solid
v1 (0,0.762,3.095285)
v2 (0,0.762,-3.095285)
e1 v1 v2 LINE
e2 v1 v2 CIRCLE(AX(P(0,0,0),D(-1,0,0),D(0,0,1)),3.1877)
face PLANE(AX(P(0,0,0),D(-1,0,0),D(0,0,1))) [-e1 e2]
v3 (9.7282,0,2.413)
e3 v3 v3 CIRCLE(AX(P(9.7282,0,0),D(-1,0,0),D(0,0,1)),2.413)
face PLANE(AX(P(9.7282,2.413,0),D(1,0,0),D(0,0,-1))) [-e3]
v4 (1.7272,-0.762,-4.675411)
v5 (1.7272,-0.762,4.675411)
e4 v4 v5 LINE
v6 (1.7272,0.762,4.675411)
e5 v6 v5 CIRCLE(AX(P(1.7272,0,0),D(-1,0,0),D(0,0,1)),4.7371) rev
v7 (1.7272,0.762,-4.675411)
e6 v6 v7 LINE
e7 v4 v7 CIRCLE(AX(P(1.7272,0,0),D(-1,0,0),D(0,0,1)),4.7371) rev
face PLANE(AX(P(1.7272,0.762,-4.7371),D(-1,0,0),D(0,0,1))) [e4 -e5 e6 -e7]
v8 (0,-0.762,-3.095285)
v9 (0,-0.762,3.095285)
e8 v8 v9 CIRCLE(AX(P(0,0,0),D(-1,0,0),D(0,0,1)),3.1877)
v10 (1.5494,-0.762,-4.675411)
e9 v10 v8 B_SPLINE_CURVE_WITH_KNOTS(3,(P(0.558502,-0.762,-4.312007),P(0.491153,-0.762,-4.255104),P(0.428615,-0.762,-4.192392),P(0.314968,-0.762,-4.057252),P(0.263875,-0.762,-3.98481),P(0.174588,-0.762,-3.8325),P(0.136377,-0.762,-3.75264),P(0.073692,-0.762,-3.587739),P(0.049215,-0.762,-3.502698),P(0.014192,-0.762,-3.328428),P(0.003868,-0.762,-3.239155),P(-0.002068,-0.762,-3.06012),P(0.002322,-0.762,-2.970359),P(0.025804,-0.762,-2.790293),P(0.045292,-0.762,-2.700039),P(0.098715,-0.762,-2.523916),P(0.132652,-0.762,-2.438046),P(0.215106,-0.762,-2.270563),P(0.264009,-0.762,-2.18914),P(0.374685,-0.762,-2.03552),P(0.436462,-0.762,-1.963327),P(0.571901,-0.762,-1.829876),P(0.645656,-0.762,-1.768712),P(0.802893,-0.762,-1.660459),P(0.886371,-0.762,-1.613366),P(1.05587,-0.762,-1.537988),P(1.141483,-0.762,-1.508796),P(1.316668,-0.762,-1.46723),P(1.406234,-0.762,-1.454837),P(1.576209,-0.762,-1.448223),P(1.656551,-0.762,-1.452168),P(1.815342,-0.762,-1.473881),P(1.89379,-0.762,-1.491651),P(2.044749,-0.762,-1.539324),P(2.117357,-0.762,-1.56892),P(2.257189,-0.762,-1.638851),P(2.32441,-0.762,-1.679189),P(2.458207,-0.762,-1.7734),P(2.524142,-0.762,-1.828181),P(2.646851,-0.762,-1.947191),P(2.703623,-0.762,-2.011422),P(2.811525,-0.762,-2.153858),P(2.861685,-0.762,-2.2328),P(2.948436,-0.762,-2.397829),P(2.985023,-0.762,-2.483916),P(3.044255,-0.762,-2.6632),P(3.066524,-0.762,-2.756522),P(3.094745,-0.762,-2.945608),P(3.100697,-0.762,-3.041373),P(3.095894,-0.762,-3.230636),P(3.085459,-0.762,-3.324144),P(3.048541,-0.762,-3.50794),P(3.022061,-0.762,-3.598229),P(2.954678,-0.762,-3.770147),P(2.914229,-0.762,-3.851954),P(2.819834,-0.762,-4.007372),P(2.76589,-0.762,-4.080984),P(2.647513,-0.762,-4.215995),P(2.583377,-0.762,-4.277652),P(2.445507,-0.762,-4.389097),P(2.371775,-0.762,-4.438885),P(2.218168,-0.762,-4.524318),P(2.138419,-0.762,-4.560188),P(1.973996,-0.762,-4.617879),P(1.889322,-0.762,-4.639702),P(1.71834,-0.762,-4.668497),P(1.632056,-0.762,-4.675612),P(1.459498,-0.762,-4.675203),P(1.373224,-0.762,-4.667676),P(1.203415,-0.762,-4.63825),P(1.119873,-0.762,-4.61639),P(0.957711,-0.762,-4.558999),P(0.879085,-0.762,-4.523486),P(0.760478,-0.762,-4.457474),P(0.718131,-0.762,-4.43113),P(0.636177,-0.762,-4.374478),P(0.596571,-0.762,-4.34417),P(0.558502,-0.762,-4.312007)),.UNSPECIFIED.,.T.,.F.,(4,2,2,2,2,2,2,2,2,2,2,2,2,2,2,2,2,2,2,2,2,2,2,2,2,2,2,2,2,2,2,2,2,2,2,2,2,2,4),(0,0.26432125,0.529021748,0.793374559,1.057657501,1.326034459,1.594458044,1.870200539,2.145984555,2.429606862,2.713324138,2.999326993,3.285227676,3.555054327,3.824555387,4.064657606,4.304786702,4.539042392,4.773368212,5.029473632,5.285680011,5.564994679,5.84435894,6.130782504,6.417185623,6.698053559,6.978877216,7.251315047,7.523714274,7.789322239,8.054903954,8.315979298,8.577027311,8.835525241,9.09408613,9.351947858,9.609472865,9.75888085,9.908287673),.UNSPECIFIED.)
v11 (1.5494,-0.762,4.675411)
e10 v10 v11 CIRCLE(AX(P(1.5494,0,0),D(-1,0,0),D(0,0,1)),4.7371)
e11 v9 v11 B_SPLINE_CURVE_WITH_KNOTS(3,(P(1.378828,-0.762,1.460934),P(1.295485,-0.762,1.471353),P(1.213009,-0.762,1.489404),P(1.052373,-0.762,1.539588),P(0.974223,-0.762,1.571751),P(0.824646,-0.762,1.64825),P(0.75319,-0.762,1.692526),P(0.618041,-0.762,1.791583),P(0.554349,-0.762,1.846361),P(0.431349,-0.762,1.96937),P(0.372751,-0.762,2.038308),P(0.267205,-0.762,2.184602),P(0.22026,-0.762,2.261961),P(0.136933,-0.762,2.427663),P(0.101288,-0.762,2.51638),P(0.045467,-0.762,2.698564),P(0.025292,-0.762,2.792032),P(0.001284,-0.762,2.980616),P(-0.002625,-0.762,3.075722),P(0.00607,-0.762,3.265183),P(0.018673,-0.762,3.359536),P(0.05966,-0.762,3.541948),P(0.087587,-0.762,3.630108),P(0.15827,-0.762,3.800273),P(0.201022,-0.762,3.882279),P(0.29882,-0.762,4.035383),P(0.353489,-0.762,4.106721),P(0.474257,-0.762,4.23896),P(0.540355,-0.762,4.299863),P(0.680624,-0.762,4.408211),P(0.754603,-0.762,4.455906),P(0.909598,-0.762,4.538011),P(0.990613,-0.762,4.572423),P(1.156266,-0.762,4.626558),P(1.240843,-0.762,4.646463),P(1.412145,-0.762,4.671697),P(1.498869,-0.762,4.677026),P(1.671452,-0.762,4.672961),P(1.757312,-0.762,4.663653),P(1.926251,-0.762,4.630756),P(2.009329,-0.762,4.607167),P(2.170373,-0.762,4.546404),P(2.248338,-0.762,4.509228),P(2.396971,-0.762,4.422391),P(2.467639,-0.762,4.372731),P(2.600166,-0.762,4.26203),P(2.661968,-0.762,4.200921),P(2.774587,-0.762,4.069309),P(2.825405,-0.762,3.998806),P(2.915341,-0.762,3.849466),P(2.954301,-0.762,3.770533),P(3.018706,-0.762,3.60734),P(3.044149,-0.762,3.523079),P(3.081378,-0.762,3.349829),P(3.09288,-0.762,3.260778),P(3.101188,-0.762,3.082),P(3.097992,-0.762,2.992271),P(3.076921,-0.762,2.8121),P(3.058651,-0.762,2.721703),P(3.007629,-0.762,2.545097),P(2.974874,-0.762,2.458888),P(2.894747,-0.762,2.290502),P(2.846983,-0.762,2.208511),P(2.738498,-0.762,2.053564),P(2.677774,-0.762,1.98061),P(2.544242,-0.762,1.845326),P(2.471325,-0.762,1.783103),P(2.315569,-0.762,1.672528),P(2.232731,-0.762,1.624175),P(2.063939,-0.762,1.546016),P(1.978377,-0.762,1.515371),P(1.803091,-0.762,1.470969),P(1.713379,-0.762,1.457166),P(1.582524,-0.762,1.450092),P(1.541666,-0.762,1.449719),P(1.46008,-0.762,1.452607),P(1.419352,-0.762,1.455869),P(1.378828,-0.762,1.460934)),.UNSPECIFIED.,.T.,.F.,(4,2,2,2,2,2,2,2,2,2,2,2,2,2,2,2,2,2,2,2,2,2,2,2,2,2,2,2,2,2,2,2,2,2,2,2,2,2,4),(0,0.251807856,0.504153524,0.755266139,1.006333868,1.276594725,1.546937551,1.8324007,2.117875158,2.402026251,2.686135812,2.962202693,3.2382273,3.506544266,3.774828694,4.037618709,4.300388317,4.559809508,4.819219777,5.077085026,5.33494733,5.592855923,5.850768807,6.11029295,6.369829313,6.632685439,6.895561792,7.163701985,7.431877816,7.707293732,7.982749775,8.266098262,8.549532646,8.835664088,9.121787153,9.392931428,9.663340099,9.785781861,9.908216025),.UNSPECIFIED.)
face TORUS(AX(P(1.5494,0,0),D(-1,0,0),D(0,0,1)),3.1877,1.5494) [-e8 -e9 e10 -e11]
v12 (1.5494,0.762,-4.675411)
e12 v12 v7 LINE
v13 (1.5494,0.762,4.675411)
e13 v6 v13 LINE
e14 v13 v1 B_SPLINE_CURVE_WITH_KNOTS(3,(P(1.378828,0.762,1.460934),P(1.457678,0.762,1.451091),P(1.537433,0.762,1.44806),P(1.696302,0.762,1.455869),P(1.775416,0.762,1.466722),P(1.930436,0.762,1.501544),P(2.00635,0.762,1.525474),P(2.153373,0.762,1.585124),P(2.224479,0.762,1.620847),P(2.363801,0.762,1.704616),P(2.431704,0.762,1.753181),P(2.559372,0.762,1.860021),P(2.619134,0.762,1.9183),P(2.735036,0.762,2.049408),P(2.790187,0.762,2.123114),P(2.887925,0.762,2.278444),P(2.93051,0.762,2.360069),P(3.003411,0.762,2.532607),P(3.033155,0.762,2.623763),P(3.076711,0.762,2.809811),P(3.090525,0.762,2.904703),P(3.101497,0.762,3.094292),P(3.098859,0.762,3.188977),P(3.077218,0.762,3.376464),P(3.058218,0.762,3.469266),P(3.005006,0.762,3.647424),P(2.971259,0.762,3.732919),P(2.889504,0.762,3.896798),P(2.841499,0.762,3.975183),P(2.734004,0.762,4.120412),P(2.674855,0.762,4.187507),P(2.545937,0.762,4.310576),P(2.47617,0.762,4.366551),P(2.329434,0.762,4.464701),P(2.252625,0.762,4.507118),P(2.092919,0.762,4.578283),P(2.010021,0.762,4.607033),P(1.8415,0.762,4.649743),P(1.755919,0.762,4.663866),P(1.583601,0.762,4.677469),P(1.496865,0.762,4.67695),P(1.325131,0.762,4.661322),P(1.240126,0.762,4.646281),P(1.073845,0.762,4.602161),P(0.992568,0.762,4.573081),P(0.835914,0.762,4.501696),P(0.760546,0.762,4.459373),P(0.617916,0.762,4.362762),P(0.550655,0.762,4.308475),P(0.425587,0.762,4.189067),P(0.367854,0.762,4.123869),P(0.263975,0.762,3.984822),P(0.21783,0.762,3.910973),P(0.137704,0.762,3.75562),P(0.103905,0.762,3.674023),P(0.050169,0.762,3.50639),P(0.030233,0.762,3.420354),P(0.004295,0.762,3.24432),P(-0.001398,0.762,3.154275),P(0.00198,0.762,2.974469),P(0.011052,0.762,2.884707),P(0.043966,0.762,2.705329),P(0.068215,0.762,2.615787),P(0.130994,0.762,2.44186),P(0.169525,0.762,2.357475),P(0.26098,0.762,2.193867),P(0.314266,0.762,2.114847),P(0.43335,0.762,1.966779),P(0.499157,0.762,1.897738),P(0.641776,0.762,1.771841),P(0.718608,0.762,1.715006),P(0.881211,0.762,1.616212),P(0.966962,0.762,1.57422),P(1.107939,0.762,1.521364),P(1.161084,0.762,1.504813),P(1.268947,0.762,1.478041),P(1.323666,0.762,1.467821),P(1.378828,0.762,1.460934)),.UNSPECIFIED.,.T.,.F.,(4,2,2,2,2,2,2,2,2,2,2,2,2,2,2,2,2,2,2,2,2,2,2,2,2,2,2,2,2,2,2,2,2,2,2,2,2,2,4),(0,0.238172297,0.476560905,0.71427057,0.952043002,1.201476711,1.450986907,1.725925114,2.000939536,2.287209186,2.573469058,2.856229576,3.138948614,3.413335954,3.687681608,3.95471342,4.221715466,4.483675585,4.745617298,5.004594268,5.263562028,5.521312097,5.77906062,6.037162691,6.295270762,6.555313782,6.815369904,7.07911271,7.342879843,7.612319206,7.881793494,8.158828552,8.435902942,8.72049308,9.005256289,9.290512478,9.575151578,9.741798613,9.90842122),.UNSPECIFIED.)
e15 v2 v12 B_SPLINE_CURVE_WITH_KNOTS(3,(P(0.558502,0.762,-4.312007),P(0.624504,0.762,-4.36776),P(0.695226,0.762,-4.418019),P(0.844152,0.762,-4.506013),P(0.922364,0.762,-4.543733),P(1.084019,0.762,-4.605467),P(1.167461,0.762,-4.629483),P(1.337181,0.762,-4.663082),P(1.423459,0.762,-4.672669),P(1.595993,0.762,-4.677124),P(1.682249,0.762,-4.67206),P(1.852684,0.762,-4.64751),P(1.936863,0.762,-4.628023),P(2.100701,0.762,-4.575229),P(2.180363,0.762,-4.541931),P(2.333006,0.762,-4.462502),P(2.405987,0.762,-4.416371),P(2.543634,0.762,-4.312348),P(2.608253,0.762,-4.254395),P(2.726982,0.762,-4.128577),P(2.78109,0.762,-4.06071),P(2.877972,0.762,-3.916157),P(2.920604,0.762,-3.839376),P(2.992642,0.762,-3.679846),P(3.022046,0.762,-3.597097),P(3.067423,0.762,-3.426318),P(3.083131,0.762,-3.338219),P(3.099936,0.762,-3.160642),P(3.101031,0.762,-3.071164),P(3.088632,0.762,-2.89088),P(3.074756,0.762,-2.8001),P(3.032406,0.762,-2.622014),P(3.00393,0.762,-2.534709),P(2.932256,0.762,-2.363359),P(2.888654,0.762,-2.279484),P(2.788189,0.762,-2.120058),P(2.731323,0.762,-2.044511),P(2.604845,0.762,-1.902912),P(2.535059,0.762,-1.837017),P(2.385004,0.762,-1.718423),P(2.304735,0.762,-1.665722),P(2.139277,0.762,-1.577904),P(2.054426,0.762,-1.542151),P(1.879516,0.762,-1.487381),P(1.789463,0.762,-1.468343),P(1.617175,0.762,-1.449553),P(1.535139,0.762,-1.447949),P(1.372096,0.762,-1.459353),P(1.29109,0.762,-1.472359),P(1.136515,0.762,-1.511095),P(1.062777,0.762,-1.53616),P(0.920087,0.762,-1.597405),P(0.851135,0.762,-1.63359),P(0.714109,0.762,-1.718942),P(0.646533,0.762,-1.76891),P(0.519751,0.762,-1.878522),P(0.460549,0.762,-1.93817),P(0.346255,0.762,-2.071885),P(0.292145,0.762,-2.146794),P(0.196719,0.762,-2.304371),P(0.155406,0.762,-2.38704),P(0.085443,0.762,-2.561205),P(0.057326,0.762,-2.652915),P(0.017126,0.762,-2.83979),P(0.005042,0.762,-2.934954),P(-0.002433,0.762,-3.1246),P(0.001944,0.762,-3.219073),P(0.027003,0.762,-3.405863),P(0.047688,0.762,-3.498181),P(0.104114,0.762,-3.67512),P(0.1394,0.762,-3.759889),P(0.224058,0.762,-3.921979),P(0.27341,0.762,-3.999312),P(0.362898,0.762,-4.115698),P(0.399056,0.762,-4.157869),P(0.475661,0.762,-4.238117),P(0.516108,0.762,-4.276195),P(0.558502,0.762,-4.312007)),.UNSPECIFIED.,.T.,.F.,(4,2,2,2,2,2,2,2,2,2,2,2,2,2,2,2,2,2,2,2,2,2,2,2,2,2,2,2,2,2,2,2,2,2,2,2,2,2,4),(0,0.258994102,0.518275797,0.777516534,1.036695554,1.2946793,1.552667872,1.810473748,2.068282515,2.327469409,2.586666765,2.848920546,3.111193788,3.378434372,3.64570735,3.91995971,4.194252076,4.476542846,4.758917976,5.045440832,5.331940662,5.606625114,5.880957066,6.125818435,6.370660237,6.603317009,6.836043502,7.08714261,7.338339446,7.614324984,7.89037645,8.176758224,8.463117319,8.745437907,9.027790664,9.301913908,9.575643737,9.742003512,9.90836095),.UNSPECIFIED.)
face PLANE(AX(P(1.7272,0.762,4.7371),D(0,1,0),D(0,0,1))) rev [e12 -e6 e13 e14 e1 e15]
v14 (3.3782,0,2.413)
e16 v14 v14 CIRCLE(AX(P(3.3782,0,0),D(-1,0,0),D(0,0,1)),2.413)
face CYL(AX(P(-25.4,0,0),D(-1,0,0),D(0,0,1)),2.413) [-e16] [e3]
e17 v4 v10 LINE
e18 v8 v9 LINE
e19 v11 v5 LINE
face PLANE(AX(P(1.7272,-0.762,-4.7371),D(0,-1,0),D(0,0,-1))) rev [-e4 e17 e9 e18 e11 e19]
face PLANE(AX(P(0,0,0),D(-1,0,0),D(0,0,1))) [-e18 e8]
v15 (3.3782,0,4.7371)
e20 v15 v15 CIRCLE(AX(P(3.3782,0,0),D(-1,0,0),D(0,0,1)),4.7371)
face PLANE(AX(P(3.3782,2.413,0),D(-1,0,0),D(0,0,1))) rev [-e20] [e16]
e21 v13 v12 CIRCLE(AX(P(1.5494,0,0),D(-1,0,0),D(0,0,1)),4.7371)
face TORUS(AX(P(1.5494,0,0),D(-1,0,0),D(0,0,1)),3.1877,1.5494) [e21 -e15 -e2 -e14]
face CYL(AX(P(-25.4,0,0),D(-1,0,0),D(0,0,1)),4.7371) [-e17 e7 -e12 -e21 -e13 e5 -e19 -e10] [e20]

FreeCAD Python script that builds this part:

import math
import FreeCAD as App
import Part
import Sketcher
from FreeCAD import Vector
Q = App.Units.Quantity

doc = App.newDocument("Part")
body = doc.addObject("PartDesign::Body", "Body")

# Sketch on XY plane
sketch1 = doc.addObject("Sketcher::SketchObject", "Sketch")
body.addObject(sketch1)
sketch1.AttachmentSupport = (doc.XY_Plane, [""])
sketch1.MapMode = "FlatFace"
sketch1.addGeometry([
    Part.LineSegment(Vector(3.4, 2.4, 0), Vector(3.4, 4.7, 0)),  # 0
    Part.LineSegment(Vector(3.4, 4.7, 0), Vector(1.5, 4.7, 0)),  # 1
    Part.ArcOfCircle(Part.Circle(Vector(1.5, 3.2, 0), Vector(0, 0, 1), 1.5), math.radians(90), math.radians(180)),  # 2
    Part.LineSegment(Vector(0, 3.2, 0), Vector(0, 0, 0)),  # 3
    Part.LineSegment(Vector(0, 0, 0), Vector(9.7, 0, 0)),  # 4
    Part.LineSegment(Vector(9.7, 0, 0), Vector(9.7, 2.4, 0)),  # 5
    Part.LineSegment(Vector(9.7, 2.4, 0), Vector(3.4, 2.4, 0)),  # 6
], False)
sketch1.addConstraint([
    Sketcher.Constraint("Coincident", 0, 2, 1, 1),
    Sketcher.Constraint("Tangent", 1, 2, 2, 1),
    Sketcher.Constraint("Tangent", 2, 2, 3, 1),
    Sketcher.Constraint("Coincident", 3, 2, 4, 1),
    Sketcher.Constraint("Coincident", 4, 2, 5, 1),
    Sketcher.Constraint("Coincident", 5, 2, 6, 1),
    Sketcher.Constraint("Coincident", 6, 2, 0, 1),
    Sketcher.Constraint("Vertical", 0),
    Sketcher.Constraint("Horizontal", 1),
    Sketcher.Constraint("Vertical", 3),
    Sketcher.Constraint("Horizontal", 4),
    Sketcher.Constraint("Vertical", 5),
    Sketcher.Constraint("Horizontal", 6),
    Sketcher.Constraint("Coincident", 3, 2, -1, 1),
    Sketcher.Constraint("Radius", 2, Q("0.061 in")),
    Sketcher.Constraint("DistanceX", 6, 2, 6, 1, Q("0.25 in")),
    Sketcher.Constraint("DistanceX", 1, 2, 1, 1, Q("0.072 in")),
    Sketcher.Constraint("DistanceY", 5, 1, 5, 2, Q("0.095 in")),
    Sketcher.Constraint("DistanceY", 0, 1, 0, 2, Q("0.0915 in")),
])
revolution = doc.addObject("PartDesign::Revolution", "Revolution")
body.addObject(revolution)
revolution.Profile = sketch1
revolution.ReferenceAxis = (sketch1, ["H_Axis"])
revolution.Angle = 360

# Sketch on YZ plane
sketch2 = doc.addObject("Sketcher::SketchObject", "Sketch001")
body.addObject(sketch2)
sketch2.AttachmentSupport = (doc.YZ_Plane, [""])
sketch2.MapMode = "FlatFace"
sketch2.addGeometry([
    Part.LineSegment(Vector(0.8, 4.7, 0), Vector(-0.8, 4.7, 0)),
    Part.LineSegment(Vector(-0.8, 4.7, 0), Vector(-0.8, -4.7, 0)),
    Part.LineSegment(Vector(-0.8, -4.7, 0), Vector(0.8, -4.7, 0)),
    Part.LineSegment(Vector(0.8, -4.7, 0), Vector(0.8, 4.7, 0)),
], False)
sketch2.addConstraint([
    Sketcher.Constraint("Coincident", 0, 2, 1, 1),
    Sketcher.Constraint("Coincident", 1, 2, 2, 1),
    Sketcher.Constraint("Coincident", 2, 2, 3, 1),
    Sketcher.Constraint("Coincident", 3, 2, 0, 1),
    Sketcher.Constraint("Horizontal", 0),
    Sketcher.Constraint("Vertical", 1),
    Sketcher.Constraint("Horizontal", 2),
    Sketcher.Constraint("Vertical", 3),
    Sketcher.Constraint("Symmetric", 0, 2, 2, 2, -1, 1),
    Sketcher.Constraint("DistanceX", 0, 2, 0, 1, Q("0.06 in")),
    Sketcher.Constraint("DistanceY", 1, 2, 1, 1, Q("0.373 in")),
])
pocket1 = doc.addObject("PartDesign::Pocket", "Pocket")
body.addObject(pocket1)
pocket1.Profile = sketch2
pocket1.Length = Q("0.068 in")
pocket1.Reversed = True

doc.recompute()
